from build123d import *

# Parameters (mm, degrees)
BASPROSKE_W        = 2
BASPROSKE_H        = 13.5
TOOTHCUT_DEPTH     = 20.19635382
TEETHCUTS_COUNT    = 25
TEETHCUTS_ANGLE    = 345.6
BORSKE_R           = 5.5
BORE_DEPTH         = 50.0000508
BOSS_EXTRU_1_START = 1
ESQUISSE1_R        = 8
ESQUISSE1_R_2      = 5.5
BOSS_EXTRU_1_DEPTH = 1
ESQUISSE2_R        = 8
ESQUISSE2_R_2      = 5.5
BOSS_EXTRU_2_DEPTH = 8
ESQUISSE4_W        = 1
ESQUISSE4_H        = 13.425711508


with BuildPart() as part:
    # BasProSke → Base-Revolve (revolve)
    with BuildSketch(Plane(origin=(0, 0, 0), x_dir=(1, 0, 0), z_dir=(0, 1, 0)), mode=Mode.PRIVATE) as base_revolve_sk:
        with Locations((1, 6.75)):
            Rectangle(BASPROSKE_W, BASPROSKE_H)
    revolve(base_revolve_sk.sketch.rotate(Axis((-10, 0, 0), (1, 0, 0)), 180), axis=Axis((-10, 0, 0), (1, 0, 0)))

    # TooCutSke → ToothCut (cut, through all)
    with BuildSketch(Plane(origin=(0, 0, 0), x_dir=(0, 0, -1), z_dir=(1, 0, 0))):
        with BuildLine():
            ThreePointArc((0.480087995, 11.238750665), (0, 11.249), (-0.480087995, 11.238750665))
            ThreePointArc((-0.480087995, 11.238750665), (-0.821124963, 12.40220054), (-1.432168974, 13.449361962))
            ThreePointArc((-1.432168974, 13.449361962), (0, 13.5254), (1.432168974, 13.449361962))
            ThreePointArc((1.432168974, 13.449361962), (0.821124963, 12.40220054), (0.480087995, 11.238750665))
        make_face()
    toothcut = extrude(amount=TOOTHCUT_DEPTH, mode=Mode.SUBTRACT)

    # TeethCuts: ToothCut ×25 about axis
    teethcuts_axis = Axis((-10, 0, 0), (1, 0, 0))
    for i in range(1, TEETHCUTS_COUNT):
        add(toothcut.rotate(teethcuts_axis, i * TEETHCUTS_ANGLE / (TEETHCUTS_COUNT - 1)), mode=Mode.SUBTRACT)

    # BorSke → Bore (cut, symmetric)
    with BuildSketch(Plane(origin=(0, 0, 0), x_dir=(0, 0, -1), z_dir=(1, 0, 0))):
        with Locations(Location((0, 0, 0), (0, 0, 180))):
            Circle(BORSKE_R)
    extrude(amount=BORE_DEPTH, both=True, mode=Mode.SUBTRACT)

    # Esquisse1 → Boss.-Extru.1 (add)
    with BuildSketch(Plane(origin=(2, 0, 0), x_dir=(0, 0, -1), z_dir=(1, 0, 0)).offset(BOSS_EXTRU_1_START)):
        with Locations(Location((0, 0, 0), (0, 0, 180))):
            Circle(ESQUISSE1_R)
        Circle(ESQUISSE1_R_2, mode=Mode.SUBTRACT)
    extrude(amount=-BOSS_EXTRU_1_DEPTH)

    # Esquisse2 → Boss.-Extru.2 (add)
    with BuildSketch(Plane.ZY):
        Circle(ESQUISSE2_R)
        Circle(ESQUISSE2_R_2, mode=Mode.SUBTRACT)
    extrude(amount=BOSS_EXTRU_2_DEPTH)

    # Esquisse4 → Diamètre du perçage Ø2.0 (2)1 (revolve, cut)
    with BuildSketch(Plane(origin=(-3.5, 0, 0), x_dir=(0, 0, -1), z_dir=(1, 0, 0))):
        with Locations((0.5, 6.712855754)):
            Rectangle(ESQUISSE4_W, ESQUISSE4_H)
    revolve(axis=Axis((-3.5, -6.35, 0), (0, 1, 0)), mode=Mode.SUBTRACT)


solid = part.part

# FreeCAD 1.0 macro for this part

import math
import FreeCAD as App
import Part
import Sketcher
Q = App.Units.Quantity

doc = App.newDocument("Part")
body = doc.addObject("PartDesign::Body", "Body")

# Sketch on XZ plane
sketch1 = body.newObject("Sketcher::SketchObject", "Sketch")
sketch1.AttachmentSupport = (doc.getObject("XZ_Plane"), [""])
sketch1.MapMode = "FlatFace"
sketch1.addGeometry(Part.LineSegment(App.Vector(0, -13.5, 0), App.Vector(0, 0, 0)), False)
sketch1.addGeometry(Part.LineSegment(App.Vector(0, 0, 0), App.Vector(2, 0, 0)), False)
sketch1.addGeometry(Part.LineSegment(App.Vector(2, 0, 0), App.Vector(2, -13.5, 0)), False)
sketch1.addGeometry(Part.LineSegment(App.Vector(2, -13.5, 0), App.Vector(0, -13.5, 0)), False)
sketch1.addConstraint(Sketcher.Constraint("Coincident", 0, 2, 1, 1))
sketch1.addConstraint(Sketcher.Constraint("Coincident", 1, 2, 2, 1))
sketch1.addConstraint(Sketcher.Constraint("Coincident", 2, 2, 3, 1))
sketch1.addConstraint(Sketcher.Constraint("Coincident", 3, 2, 0, 1))
sketch1.addConstraint(Sketcher.Constraint("Vertical", 0))
sketch1.addConstraint(Sketcher.Constraint("Horizontal", 1))
sketch1.addConstraint(Sketcher.Constraint("Vertical", 2))
sketch1.addConstraint(Sketcher.Constraint("Horizontal", 3))
sketch1.addConstraint(Sketcher.Constraint("Coincident", 0, 2, -1, 1))
sketch1.addConstraint(Sketcher.Constraint("DistanceX", 1, 1, 1, 2, Q("2 mm")))
sketch1.addConstraint(Sketcher.Constraint("DistanceY", 0, 1, 0, 2, Q("13.5 mm")))
revolution = body.newObject("PartDesign::Revolution", "Revolution")
revolution.Profile = sketch1
revolution.ReferenceAxis = (sketch1, ["H_Axis"])
revolution.Angle = 360

# Sketch on YZ plane
sketch2 = body.newObject("Sketcher::SketchObject", "Sketch001")
sketch2.AttachmentSupport = (doc.getObject("YZ_Plane"), [""])
sketch2.MapMode = "FlatFace"
sketch2.addGeometry(Part.ArcOfCircle(Part.Circle(App.Vector(0, 0, 0), App.Vector(0, 0, 1), 11.2), math.radians(-2.45), math.radians(2.45)), False)
sketch2.addGeometry(Part.ArcOfCircle(Part.Circle(App.Vector(10.4, -5.4, 0), App.Vector(0, 0, 1), 5), math.radians(53), math.radians(81)), False)
sketch2.addGeometry(Part.ArcOfCircle(Part.Circle(App.Vector(0, 0, 0), App.Vector(0, 0, 1), 13.5), math.radians(-6.08), math.radians(6.08)), False)
sketch2.addGeometry(Part.ArcOfCircle(Part.Circle(App.Vector(10.4, 5.4, 0), App.Vector(0, 0, 1), 5), math.radians(-81), math.radians(-53)), False)
sketch2.addConstraint(Sketcher.Constraint("Coincident", 0, 1, 1, 2))
sketch2.addConstraint(Sketcher.Constraint("Coincident", 1, 1, 2, 1))
sketch2.addConstraint(Sketcher.Constraint("Coincident", 2, 2, 3, 2))
sketch2.addConstraint(Sketcher.Constraint("Coincident", 3, 1, 0, 2))
sketch2.addConstraint(Sketcher.Constraint("Coincident", 0, 3, -1, 1))
sketch2.addConstraint(Sketcher.Constraint("Coincident", 2, 3, -1, 1))
sketch2.addConstraint(Sketcher.Constraint("Equal", 1, 3))
sketch2.addConstraint(Sketcher.Constraint("Symmetric", 1, 3, 3, 3, -1))
sketch2.addConstraint(Sketcher.Constraint("Radius", 1, Q("5 mm")))
sketch2.addConstraint(Sketcher.Constraint("Radius", 0, Q("11.249 mm")))
sketch2.addConstraint(Sketcher.Constraint("Radius", 2, Q("13.5254 mm")))
sketch2.addConstraint(Sketcher.Constraint("DistanceX", -1, 1, 1, 3, Q("10.424401 mm")))
sketch2.addConstraint(Sketcher.Constraint("DistanceX", -1, 1, 0, 1, Q("11.238751 mm")))
pocket1 = body.newObject("PartDesign::Pocket", "Pocket")
pocket1.Profile = sketch2
pocket1.Type = "ThroughAll"
pocket1.Reversed = True
doc.recompute()

polarpattern = body.newObject("PartDesign::PolarPattern", "PolarPattern")
polarpattern.Originals = [pocket1]
polarpattern.Axis = (doc.getObject("X_Axis"), [""])
polarpattern.Angle = 360
polarpattern.Occurrences = 25
body.Tip = polarpattern

# Sketch on YZ plane
sketch3 = body.newObject("Sketcher::SketchObject", "Sketch002")
sketch3.AttachmentSupport = (doc.getObject("YZ_Plane"), [""])
sketch3.MapMode = "FlatFace"
sketch3.addGeometry(Part.Circle(App.Vector(0, 0, 0), App.Vector(0, 0, 1), 6), False)
sketch3.addConstraint(Sketcher.Constraint("Coincident", 0, 3, -1, 1))
sketch3.addConstraint(Sketcher.Constraint("Diameter", 0, Q("11 mm")))
pocket2 = body.newObject("PartDesign::Pocket", "Pocket001")
pocket2.Profile = sketch3
pocket2.Length = 100.000102
pocket2.Midplane = True

# Sketch on YZ plane
sketch4 = body.newObject("Sketcher::SketchObject", "Sketch003")
sketch4.AttachmentSupport = (doc.getObject("YZ_Plane"), [""])
sketch4.MapMode = "FlatFace"
sketch4.AttachmentOffset = App.Placement(App.Vector(0, 0, 3), App.Rotation())
sketch4.addGeometry(Part.Circle(App.Vector(0, 0, 0), App.Vector(0, 0, 1), 8), False)
sketch4.addGeometry(Part.Circle(App.Vector(0, 0, 0), App.Vector(0, 0, 1), 6), False)
sketch4.addConstraint(Sketcher.Constraint("Coincident", 0, 3, -1, 1))
sketch4.addConstraint(Sketcher.Constraint("Coincident", 1, 3, -1, 1))
sketch4.addConstraint(Sketcher.Constraint("Diameter", 0, Q("16 mm")))
sketch4.addConstraint(Sketcher.Constraint("Diameter", 1, Q("11 mm")))
pad1 = body.newObject("PartDesign::Pad", "Pad")
pad1.Profile = sketch4
pad1.Length = 1
pad1.Reversed = True

# Sketch on YZ plane
sketch5 = body.newObject("Sketcher::SketchObject", "Sketch004")
sketch5.AttachmentSupport = (doc.getObject("YZ_Plane"), [""])
sketch5.MapMode = "FlatFace"
sketch5.addGeometry(Part.Circle(App.Vector(0, 0, 0), App.Vector(0, 0, 1), 8), False)
sketch5.addGeometry(Part.Circle(App.Vector(0, 0, 0), App.Vector(0, 0, 1), 6), False)
sketch5.addConstraint(Sketcher.Constraint("Coincident", 0, 3, -1, 1))
sketch5.addConstraint(Sketcher.Constraint("Coincident", 1, 3, -1, 1))
sketch5.addConstraint(Sketcher.Constraint("Diameter", 0, Q("16 mm")))
sketch5.addConstraint(Sketcher.Constraint("Diameter", 1, Q("11 mm")))
pad2 = body.newObject("PartDesign::Pad", "Pad001")
pad2.Profile = sketch5
pad2.Length = 8
pad2.Reversed = True

# Sketch on YZ plane
sketch6 = body.newObject("Sketcher::SketchObject", "Sketch005")
sketch6.AttachmentSupport = (doc.getObject("YZ_Plane"), [""])
sketch6.MapMode = "FlatFace"
sketch6.AttachmentOffset = App.Placement(App.Vector(0, 0, -3.5), App.Rotation())
sketch6.addGeometry(Part.LineSegment(App.Vector(13.4, 0, 0), App.Vector(0, 0, 0)), False)
sketch6.addGeometry(Part.LineSegment(App.Vector(0, 0, 0), App.Vector(0, -1, 0)), False)
sketch6.addGeometry(Part.LineSegment(App.Vector(0, -1, 0), App.Vector(13.4, -1, 0)), False)
sketch6.addGeometry(Part.LineSegment(App.Vector(13.4, -1, 0), App.Vector(13.4, 0, 0)), False)
sketch6.addConstraint(Sketcher.Constraint("Coincident", 0, 2, 1, 1))
sketch6.addConstraint(Sketcher.Constraint("Coincident", 1, 2, 2, 1))
sketch6.addConstraint(Sketcher.Constraint("Coincident", 2, 2, 3, 1))
sketch6.addConstraint(Sketcher.Constraint("Coincident", 3, 2, 0, 1))
sketch6.addConstraint(Sketcher.Constraint("Horizontal", 0))
sketch6.addConstraint(Sketcher.Constraint("Vertical", 1))
sketch6.addConstraint(Sketcher.Constraint("Horizontal", 2))
sketch6.addConstraint(Sketcher.Constraint("Vertical", 3))
sketch6.addConstraint(Sketcher.Constraint("Coincident", 0, 2, -1, 1))
sketch6.addConstraint(Sketcher.Constraint("DistanceY", 1, 2, 1, 1, Q("1 mm")))
sketch6.addConstraint(Sketcher.Constraint("DistanceX", 0, 2, 0, 1, Q("13.425712 mm")))
groove = body.newObject("PartDesign::Groove", "Groove")
groove.Profile = sketch6
groove.ReferenceAxis = (sketch6, ["H_Axis"])
groove.Angle = 360

doc.recompute()
